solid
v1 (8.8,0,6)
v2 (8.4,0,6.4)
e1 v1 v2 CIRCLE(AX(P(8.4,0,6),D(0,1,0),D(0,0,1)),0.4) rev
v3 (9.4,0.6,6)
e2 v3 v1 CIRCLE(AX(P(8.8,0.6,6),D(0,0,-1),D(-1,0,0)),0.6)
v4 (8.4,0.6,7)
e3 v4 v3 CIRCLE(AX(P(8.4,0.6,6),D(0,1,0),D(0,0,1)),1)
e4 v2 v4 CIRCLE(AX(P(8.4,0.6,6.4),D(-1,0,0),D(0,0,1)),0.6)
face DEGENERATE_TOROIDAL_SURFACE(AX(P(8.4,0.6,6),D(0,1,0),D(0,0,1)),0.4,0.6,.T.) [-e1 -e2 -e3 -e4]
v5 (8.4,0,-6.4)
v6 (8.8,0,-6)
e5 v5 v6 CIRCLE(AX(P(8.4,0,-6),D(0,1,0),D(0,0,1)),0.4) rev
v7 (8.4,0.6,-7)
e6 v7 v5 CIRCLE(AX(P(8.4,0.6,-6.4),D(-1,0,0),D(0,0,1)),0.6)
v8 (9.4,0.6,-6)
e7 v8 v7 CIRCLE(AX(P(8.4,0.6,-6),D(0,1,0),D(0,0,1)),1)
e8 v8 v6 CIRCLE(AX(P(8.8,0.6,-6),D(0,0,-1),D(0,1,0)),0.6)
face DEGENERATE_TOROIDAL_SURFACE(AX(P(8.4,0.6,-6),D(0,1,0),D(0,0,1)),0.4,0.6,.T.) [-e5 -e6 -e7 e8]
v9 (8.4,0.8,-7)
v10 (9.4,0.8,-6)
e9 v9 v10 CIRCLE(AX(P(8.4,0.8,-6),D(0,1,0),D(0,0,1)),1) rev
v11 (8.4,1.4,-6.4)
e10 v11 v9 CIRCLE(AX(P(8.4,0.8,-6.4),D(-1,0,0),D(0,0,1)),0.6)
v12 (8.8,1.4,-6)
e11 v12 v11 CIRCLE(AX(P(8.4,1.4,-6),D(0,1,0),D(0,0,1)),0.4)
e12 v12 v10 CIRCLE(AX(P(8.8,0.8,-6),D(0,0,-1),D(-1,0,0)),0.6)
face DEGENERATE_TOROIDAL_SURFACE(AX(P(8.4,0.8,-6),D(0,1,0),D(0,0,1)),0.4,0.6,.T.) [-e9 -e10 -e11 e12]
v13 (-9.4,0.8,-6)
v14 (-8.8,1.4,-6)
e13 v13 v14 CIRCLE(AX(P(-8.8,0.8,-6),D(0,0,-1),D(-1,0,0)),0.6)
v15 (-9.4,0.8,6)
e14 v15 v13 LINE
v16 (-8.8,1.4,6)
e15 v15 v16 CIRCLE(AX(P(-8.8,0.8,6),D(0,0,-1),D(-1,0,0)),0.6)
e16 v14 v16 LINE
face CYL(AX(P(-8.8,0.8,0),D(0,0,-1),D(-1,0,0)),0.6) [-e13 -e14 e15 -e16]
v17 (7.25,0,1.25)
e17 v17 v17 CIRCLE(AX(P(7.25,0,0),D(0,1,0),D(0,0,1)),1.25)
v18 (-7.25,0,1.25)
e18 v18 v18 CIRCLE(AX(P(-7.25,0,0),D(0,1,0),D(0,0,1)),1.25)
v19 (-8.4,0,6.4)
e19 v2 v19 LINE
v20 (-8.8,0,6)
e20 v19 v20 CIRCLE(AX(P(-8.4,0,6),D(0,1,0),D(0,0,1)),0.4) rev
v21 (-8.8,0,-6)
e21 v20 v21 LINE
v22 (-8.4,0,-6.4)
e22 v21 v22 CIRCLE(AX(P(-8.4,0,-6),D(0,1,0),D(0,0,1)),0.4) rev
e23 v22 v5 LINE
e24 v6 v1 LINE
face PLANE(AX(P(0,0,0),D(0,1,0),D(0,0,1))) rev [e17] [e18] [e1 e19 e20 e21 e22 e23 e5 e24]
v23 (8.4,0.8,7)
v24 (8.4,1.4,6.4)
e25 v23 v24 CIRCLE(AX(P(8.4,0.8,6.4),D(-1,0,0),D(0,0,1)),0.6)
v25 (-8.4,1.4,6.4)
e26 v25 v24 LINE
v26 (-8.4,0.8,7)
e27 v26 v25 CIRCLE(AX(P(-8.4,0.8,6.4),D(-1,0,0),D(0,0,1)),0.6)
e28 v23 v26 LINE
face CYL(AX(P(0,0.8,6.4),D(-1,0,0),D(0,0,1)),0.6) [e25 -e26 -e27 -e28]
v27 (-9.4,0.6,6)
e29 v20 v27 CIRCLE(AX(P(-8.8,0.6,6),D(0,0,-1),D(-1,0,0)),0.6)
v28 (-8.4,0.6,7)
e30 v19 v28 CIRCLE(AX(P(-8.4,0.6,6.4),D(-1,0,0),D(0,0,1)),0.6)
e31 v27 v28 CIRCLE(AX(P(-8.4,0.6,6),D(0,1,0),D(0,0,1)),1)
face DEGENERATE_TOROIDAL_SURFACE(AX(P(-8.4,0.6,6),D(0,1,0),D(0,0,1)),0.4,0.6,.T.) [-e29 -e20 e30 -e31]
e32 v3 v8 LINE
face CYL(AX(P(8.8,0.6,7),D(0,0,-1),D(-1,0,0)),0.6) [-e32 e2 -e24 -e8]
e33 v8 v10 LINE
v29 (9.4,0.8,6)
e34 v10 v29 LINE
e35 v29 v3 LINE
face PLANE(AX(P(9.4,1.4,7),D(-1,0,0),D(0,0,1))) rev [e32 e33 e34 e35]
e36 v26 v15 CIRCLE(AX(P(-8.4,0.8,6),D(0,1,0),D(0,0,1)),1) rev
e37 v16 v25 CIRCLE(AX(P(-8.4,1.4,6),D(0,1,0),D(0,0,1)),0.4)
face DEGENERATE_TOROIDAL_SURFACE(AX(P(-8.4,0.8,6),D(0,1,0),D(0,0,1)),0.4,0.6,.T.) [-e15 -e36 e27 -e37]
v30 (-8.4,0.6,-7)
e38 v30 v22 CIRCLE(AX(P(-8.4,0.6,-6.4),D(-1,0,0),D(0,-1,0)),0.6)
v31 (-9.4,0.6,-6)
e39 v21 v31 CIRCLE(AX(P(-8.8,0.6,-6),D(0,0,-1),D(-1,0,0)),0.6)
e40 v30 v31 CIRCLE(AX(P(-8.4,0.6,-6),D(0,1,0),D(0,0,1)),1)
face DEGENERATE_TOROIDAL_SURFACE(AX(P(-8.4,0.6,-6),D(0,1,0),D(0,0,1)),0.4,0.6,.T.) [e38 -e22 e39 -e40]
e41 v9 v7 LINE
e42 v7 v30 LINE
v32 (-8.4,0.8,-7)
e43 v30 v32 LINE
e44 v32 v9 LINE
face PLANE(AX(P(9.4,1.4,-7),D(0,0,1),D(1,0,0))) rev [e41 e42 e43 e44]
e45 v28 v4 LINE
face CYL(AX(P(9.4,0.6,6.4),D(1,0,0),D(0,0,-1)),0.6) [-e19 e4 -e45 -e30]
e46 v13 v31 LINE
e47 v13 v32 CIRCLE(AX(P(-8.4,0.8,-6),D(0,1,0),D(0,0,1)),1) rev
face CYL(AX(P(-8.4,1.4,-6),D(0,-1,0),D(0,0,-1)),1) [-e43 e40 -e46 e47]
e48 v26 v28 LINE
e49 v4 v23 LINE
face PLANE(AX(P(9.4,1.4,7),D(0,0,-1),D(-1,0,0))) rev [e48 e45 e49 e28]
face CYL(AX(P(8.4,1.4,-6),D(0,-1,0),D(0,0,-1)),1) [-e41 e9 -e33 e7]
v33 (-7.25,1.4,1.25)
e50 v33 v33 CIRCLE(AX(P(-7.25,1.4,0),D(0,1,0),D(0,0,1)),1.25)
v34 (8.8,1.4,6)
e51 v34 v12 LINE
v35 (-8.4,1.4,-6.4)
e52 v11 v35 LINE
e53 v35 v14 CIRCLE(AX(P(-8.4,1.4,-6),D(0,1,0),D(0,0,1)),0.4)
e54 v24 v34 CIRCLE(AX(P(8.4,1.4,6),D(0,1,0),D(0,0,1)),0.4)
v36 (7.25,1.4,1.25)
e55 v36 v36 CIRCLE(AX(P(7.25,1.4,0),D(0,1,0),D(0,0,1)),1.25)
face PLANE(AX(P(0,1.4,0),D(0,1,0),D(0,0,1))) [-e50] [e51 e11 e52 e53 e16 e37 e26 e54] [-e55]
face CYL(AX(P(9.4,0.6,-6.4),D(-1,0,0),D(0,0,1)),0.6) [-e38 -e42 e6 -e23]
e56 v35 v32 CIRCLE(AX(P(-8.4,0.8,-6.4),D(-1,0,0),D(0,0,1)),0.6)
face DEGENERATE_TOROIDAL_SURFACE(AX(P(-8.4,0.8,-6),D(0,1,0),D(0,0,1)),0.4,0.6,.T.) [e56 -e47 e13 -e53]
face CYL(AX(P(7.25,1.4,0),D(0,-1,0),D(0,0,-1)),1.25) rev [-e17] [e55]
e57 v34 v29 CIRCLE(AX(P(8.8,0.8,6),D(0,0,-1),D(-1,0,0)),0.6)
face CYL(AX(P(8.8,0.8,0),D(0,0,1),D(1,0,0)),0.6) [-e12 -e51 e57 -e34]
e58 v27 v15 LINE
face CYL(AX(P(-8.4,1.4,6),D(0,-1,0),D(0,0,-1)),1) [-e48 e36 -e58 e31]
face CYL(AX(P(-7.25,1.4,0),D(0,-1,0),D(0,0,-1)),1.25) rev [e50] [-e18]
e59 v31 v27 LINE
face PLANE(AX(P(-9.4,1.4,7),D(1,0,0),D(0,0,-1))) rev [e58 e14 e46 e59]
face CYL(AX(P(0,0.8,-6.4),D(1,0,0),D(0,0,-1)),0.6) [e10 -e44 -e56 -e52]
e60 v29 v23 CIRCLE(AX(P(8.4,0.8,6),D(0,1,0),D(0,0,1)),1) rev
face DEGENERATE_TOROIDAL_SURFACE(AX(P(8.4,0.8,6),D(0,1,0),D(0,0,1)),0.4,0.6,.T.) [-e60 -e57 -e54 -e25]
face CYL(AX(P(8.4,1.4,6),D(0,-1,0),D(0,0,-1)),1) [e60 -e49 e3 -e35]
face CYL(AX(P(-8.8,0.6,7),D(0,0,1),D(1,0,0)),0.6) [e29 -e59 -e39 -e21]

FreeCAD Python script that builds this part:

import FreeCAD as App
import Part
import Sketcher
from FreeCAD import Vector


def edges_at(feature, points):
    """Names of the edges that pass closest to the given points."""
    edges = feature.Shape.Edges
    near = lambda p: min(range(len(edges)), key=lambda i: edges[i].distToShape(Part.Vertex(*p))[0])
    return sorted({f"Edge{near(p) + 1}" for p in points})

doc = App.newDocument("Part")
body = doc.addObject("PartDesign::Body", "Body")

sketch1 = body.newObject("Sketcher::SketchObject", "Sketch")
sketch1.AttachmentSupport = (doc.getObject("XZ_Plane"), [""])
sketch1.MapMode = "FlatFace"
sketch1.addGeometry(Part.LineSegment(Vector(-9.4, -7, 0), Vector(-9.4, 7, 0)), False)
sketch1.addGeometry(Part.LineSegment(Vector(-9.4, 7, 0), Vector(9.4, 7, 0)), False)
sketch1.addGeometry(Part.LineSegment(Vector(9.4, 7, 0), Vector(9.4, -7, 0)), False)
sketch1.addGeometry(Part.LineSegment(Vector(9.4, -7, 0), Vector(-9.4, -7, 0)), False)
sketch1.addGeometry(Part.Circle(Vector(-7.25, 0, 0), Vector(0, 0, 1), 1.25), False)
sketch1.addGeometry(Part.Circle(Vector(7.25, 0, 0), Vector(0, 0, 1), 1.25), False)
sketch1.addConstraint(Sketcher.Constraint("Coincident", 0, 2, 1, 1))
sketch1.addConstraint(Sketcher.Constraint("Coincident", 1, 2, 2, 1))
sketch1.addConstraint(Sketcher.Constraint("Coincident", 2, 2, 3, 1))
sketch1.addConstraint(Sketcher.Constraint("Coincident", 3, 2, 0, 1))
sketch1.addConstraint(Sketcher.Constraint("Vertical", 0))
sketch1.addConstraint(Sketcher.Constraint("Horizontal", 1))
sketch1.addConstraint(Sketcher.Constraint("Vertical", 2))
sketch1.addConstraint(Sketcher.Constraint("Horizontal", 3))
sketch1.addConstraint(Sketcher.Constraint("Equal", 4, 5))
sketch1.addConstraint(Sketcher.Constraint("Symmetric", 4, 3, 5, 3, -1, 1))
sketch1.addConstraint(Sketcher.Constraint("Symmetric", 0, 2, 2, 2, -1, 1))
sketch1.addConstraint(Sketcher.Constraint("PointOnObject", 4, 3, -1))
sketch1.addConstraint(Sketcher.Constraint("Diameter", 4, 2.5))
sketch1.addConstraint(Sketcher.Constraint("DistanceY", 0, 1, 0, 2, 14.0))
sketch1.addConstraint(Sketcher.Constraint("DistanceX", 1, 1, 1, 2, 18.8))
sketch1.addConstraint(Sketcher.Constraint("DistanceX", 4, 3, 5, 3, 14.5))
pad1 = body.newObject("PartDesign::Pad", "Pad")
pad1.Profile = sketch1
pad1.Length = 1.4
pad1.Reversed = True
doc.recompute()

fillet = body.newObject("PartDesign::Fillet", "Fillet")
fillet.Base = (pad1, edges_at(pad1, [
    (-9.4, 0.7, -7),
    (9.4, 0.7, -7),
    (9.4, 0.7, 7),
    (-9.4, 0.7, 7),
]))
fillet.Radius = 1
doc.recompute()

fillet2 = body.newObject("PartDesign::Fillet", "Fillet001")
fillet2.Base = (fillet, edges_at(fillet, [
    (0, 0, 7),
    (0, 1.4, 7),
    (-9.4, 0, 0),
    (0, 0, -7),
    (9.4, 0, 0),
    (-9.107, 0, -6.707),
    (9.107, 0, -6.707),
    (9.107, 0, 6.707),
    (-9.107, 0, 6.707),
    (-9.4, 1.4, 0),
    (9.4, 1.4, 0),
    (0, 1.4, -7),
    (-9.107, 1.4, -6.707),
    (9.107, 1.4, -6.707),
    (9.107, 1.4, 6.707),
    (-9.107, 1.4, 6.707),
]))
fillet2.Radius = 0.6

doc.recompute()
